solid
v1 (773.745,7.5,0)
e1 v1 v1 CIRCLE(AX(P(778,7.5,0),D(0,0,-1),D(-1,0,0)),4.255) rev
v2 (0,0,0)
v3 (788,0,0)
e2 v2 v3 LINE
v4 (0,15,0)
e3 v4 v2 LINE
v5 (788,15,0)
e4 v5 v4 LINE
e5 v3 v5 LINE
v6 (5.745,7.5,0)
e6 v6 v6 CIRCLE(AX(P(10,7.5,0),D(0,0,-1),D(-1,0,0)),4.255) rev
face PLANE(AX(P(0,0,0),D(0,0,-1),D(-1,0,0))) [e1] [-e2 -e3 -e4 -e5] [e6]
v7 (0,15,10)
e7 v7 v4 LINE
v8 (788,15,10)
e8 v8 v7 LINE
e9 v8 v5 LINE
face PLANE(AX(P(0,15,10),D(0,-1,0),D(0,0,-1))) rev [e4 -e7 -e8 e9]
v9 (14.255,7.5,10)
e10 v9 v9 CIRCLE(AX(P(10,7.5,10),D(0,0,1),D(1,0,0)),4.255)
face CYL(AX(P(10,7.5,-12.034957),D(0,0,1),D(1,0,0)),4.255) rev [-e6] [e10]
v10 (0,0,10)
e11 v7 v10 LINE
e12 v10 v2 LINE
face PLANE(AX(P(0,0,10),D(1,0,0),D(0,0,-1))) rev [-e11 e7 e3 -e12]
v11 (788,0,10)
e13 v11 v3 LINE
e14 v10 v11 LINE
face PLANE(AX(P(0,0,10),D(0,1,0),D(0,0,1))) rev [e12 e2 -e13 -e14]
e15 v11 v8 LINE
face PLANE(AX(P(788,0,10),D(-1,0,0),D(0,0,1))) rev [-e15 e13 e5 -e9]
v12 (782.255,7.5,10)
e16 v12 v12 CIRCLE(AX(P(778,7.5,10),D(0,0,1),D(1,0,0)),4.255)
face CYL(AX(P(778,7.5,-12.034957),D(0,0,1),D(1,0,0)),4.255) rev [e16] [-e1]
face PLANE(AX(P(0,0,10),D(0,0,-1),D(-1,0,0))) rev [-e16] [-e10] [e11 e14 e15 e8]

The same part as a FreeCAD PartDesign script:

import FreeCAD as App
import Part
import Sketcher
from FreeCAD import Vector
Q = App.Units.Quantity


def add_polygon(sketch, points):
    """Adds a closed chain of lines whose ends are joined by coincident constraints."""
    first, n = sketch.GeometryCount, len(points)
    for a, b in zip(points, points[1:] + points[:1]):
        sketch.addGeometry(Part.LineSegment(App.Vector(*a, 0), App.Vector(*b, 0)), False)
    for i in range(n):
        sketch.addConstraint(Sketcher.Constraint("Coincident", first + i, 2, first + (i + 1) % n, 1))

doc = App.newDocument("Part")
body = doc.addObject("PartDesign::Body", "Body")

sketch1 = body.newObject("Sketcher::SketchObject", "Sketch")
sketch1.AttachmentSupport = (doc.getObject("XY_Plane"), [""])
sketch1.MapMode = "FlatFace"
add_polygon(sketch1, [(0, 15), (0, 0), (788, 0), (788, 15)])
sketch1.addConstraint([
    Sketcher.Constraint("Vertical", 0),
    Sketcher.Constraint("Horizontal", 1),
    Sketcher.Constraint("Vertical", 2),
    Sketcher.Constraint("Horizontal", 3),
    Sketcher.Constraint("Coincident", 0, 2, -1, 1),
    Sketcher.Constraint("DistanceX", 1, 1, 1, 2, Q("788 mm")),
    Sketcher.Constraint("DistanceY", 0, 2, 0, 1, Q("15 mm")),
])
pad1 = body.newObject("PartDesign::Pad", "Pad")
pad1.Profile = sketch1
pad1.Length = 10

sketch2 = body.newObject("Sketcher::SketchObject", "Sketch001")
sketch2.AttachmentSupport = (doc.getObject("XY_Plane"), [""])
sketch2.MapMode = "FlatFace"
sketch2.AttachmentOffset = App.Placement(Vector(0, 0, 10), App.Rotation())
sketch2.addGeometry([
    Part.Circle(Vector(10, 7.5, 0), Vector(0, 0, 1), 4.3),
    Part.Circle(Vector(778, 7.5, 0), Vector(0, 0, 1), 4.3),
], False)
sketch2.addConstraint([
    Sketcher.Constraint("Equal", 0, 1),
    Sketcher.Constraint("Horizontal", 0, 3, 1, 3),
    Sketcher.Constraint("Diameter", 0, Q("8.51 mm")),
    Sketcher.Constraint("DistanceX", -1, 1, 0, 3, Q("10 mm")),
    Sketcher.Constraint("DistanceX", -1, 1, 1, 3, Q("778 mm")),
    Sketcher.Constraint("DistanceY", -1, 1, 0, 3, Q("7.5 mm")),
])
pocket1 = body.newObject("PartDesign::Pocket", "Pocket")
pocket1.Profile = sketch2
pocket1.Length = 10

doc.recompute()
